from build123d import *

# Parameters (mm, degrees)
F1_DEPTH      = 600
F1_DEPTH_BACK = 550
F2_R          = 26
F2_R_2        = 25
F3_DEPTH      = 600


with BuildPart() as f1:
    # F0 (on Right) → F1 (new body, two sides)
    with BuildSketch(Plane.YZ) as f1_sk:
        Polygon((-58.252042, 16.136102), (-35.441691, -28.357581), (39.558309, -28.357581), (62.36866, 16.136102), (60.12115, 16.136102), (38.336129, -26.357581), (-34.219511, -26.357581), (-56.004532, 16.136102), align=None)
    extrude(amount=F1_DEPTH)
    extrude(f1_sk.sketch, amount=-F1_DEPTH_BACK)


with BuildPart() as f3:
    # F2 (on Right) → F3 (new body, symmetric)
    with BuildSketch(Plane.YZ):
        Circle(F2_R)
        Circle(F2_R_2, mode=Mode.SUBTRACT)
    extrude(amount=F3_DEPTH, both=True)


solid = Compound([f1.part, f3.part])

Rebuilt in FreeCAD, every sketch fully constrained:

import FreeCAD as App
import Part
import Sketcher

V = App.Vector
Q = App.Units.Quantity

doc = App.newDocument("Part")
body = doc.addObject("PartDesign::Body", "Body")

# Sketch on YZ plane
sketch1 = doc.addObject("Sketcher::SketchObject", "Sketch")
body.addObject(sketch1)
sketch1.AttachmentSupport = (doc.YZ_Plane, [""])
sketch1.MapMode = "FlatFace"
sketch1.addGeometry([
    Part.LineSegment(V(-58.252042, 16.136102, 0), V(-35.441691, -28.357581, 0)),  # 0
    Part.LineSegment(V(-35.441691, -28.357581, 0), V(39.558309, -28.357581, 0)),  # 1
    Part.LineSegment(V(39.558309, -28.357581, 0), V(62.36866, 16.136102, 0)),  # 2
    Part.LineSegment(V(62.36866, 16.136102, 0), V(60.12115, 16.136102, 0)),  # 3
    Part.LineSegment(V(60.12115, 16.136102, 0), V(38.336129, -26.357581, 0)),  # 4
    Part.LineSegment(V(38.336129, -26.357581, 0), V(-34.219511, -26.357581, 0)),  # 5
    Part.LineSegment(V(-34.219511, -26.357581, 0), V(-56.004532, 16.136102, 0)),  # 6
    Part.LineSegment(V(-56.004532, 16.136102, 0), V(-58.252042, 16.136102, 0)),  # 7
], False)
sketch1.addConstraint([
    Sketcher.Constraint("Coincident", 0, 2, 1, 1),
    Sketcher.Constraint("Coincident", 1, 2, 2, 1),
    Sketcher.Constraint("Coincident", 2, 2, 3, 1),
    Sketcher.Constraint("Coincident", 3, 2, 4, 1),
    Sketcher.Constraint("Coincident", 4, 2, 5, 1),
    Sketcher.Constraint("Coincident", 5, 2, 6, 1),
    Sketcher.Constraint("Coincident", 6, 2, 7, 1),
    Sketcher.Constraint("Coincident", 7, 2, 0, 1),
    Sketcher.Constraint("Horizontal", 1),
    Sketcher.Constraint("Horizontal", 3),
    Sketcher.Constraint("Horizontal", 5),
    Sketcher.Constraint("Horizontal", 7),
    Sketcher.Constraint("Parallel", 2, 4),
    Sketcher.Constraint("Parallel", 0, 6),
    Sketcher.Constraint("Horizontal", 3, 2, 6, 2),
    Sketcher.Constraint("Equal", 3, 7),
    Sketcher.Constraint("Equal", 0, 2),
    Sketcher.Constraint("DistanceX", 1, 1, 1, 2, Q("75 mm")),
    Sketcher.Constraint("Distance", 0, Q("49.999999 mm")),
    Sketcher.Constraint("DistanceY", 1, 2, 4, 2, Q("2 mm")),
    Sketcher.Constraint("DistanceX", 3, 2, 3, 1, Q("2.24751 mm")),
    Sketcher.Constraint("DistanceX", 5, 2, 5, 1, Q("72.55564 mm")),
    Sketcher.Constraint("DistanceX", 0, 2, -1, 1, Q("35.441691 mm")),
    Sketcher.Constraint("DistanceY", 0, 2, -1, 1, Q("28.357581 mm")),
])
pad1 = doc.addObject("PartDesign::Pad", "Pad")
body.addObject(pad1)
pad1.Profile = sketch1
pad1.Type = "TwoLengths"
pad1.Length = 600
pad1.Length2 = 550
body2 = doc.addObject("PartDesign::Body", "Body001")

# Sketch on YZ plane
sketch2 = doc.addObject("Sketcher::SketchObject", "Sketch001")
body2.addObject(sketch2)
sketch2.AttachmentSupport = (doc.getObject("YZ_Plane001"), [""])
sketch2.MapMode = "FlatFace"
sketch2.addGeometry([
    Part.Circle(V(0, 0, 0), V(0, 0, 1), 26),
    Part.Circle(V(0, 0, 0), V(0, 0, 1), 25),
], False)
sketch2.addConstraint([
    Sketcher.Constraint("Coincident", 0, 3, -1, 1),
    Sketcher.Constraint("Coincident", 1, 3, -1, 1),
    Sketcher.Constraint("Diameter", 0, Q("52 mm")),
    Sketcher.Constraint("Diameter", 1, Q("50 mm")),
])
pad2 = doc.addObject("PartDesign::Pad", "Pad001")
body2.addObject(pad2)
pad2.Profile = sketch2
pad2.Length = 1200
pad2.Midplane = True

doc.recompute()
